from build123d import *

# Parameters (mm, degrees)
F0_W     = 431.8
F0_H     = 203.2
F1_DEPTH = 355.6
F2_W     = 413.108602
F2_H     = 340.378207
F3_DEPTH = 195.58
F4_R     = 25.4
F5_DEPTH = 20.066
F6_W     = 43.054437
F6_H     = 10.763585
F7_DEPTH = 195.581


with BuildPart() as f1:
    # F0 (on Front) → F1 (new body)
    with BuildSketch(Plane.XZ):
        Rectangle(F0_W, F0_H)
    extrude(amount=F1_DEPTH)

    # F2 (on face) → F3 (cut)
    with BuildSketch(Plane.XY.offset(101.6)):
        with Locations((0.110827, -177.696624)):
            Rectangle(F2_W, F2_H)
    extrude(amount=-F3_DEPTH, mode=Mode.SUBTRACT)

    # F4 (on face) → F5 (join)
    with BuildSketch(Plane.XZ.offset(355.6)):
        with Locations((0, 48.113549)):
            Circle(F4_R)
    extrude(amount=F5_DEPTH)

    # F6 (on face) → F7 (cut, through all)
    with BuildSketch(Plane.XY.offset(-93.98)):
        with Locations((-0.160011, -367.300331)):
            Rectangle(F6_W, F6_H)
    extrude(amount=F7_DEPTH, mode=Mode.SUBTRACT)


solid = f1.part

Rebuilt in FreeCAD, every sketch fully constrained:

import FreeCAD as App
import Part
import Sketcher
from FreeCAD import Vector
Q = App.Units.Quantity


def add_polygon(sketch, points):
    """Adds a closed chain of lines whose ends are joined by coincident constraints."""
    first, n = sketch.GeometryCount, len(points)
    for a, b in zip(points, points[1:] + points[:1]):
        sketch.addGeometry(Part.LineSegment(App.Vector(*a, 0), App.Vector(*b, 0)), False)
    for i in range(n):
        sketch.addConstraint(Sketcher.Constraint("Coincident", first + i, 2, first + (i + 1) % n, 1))

doc = App.newDocument("Part")
body = doc.addObject("PartDesign::Body", "Body")

# Sketch on XZ plane
sketch1 = doc.addObject("Sketcher::SketchObject", "Sketch")
body.addObject(sketch1)
sketch1.AttachmentSupport = (doc.XZ_Plane, [""])
sketch1.MapMode = "FlatFace"
add_polygon(sketch1, [(-216, 102), (-216, -102), (216, -102), (216, 102)])  # lines 0-3
sketch1.addConstraint(Sketcher.Constraint("Vertical", 0))
sketch1.addConstraint(Sketcher.Constraint("Horizontal", 1))
sketch1.addConstraint(Sketcher.Constraint("Vertical", 2))
sketch1.addConstraint(Sketcher.Constraint("Horizontal", 3))
sketch1.addConstraint(Sketcher.Constraint("Symmetric", 0, 2, 2, 2, -1, 1))
sketch1.addConstraint(Sketcher.Constraint("DistanceX", 1, 1, 1, 2, Q("17 in")))
sketch1.addConstraint(Sketcher.Constraint("DistanceY", 0, 2, 0, 1, Q("8 in")))
pad1 = doc.addObject("PartDesign::Pad", "Pad")
body.addObject(pad1)
pad1.Profile = sketch1
pad1.Length = Q("14 in")

# Sketch on XY plane
sketch2 = doc.addObject("Sketcher::SketchObject", "Sketch001")
body.addObject(sketch2)
sketch2.AttachmentSupport = (doc.XY_Plane, [""])
sketch2.MapMode = "FlatFace"
sketch2.AttachmentOffset = App.Placement(Vector(0, 0, 4 * 25.4), App.Rotation())
add_polygon(sketch2, [(-206, -8), (-206, -348), (207, -348), (207, -8)])  # lines 0-3
sketch2.addConstraint(Sketcher.Constraint("Vertical", 0))
sketch2.addConstraint(Sketcher.Constraint("Horizontal", 1))
sketch2.addConstraint(Sketcher.Constraint("Vertical", 2))
sketch2.addConstraint(Sketcher.Constraint("Horizontal", 3))
sketch2.addConstraint(Sketcher.Constraint("DistanceX", 1, 1, 1, 2, Q("413.108602 mm")))
sketch2.addConstraint(Sketcher.Constraint("DistanceY", 0, 2, 0, 1, Q("340.378207 mm")))
sketch2.addConstraint(Sketcher.Constraint("DistanceX", -1, 1, 1, 2, Q("206.665128 mm")))
sketch2.addConstraint(Sketcher.Constraint("DistanceY", 2, 2, -1, 1, Q("7.507521 mm")))
pocket1 = doc.addObject("PartDesign::Pocket", "Pocket")
body.addObject(pocket1)
pocket1.Profile = sketch2
pocket1.Length = Q("7.7 in")

# Sketch on XZ plane
sketch3 = doc.addObject("Sketcher::SketchObject", "Sketch002")
body.addObject(sketch3)
sketch3.AttachmentSupport = (doc.XZ_Plane, [""])
sketch3.MapMode = "FlatFace"
sketch3.AttachmentOffset = App.Placement(Vector(0, 0, 14 * 25.4), App.Rotation())
sketch3.addGeometry(Part.Circle(Vector(0, 48, 0), Vector(0, 0, 1), 25), False)
sketch3.addConstraint(Sketcher.Constraint("PointOnObject", 0, 3, -2))
sketch3.addConstraint(Sketcher.Constraint("Diameter", 0, Q("2 in")))
sketch3.addConstraint(Sketcher.Constraint("DistanceY", -1, 1, 0, 3, Q("48.113549 mm")))
pad2 = doc.addObject("PartDesign::Pad", "Pad001")
body.addObject(pad2)
pad2.Profile = sketch3
pad2.Length = Q("0.79 in")

# Sketch on XY plane
sketch4 = doc.addObject("Sketcher::SketchObject", "Sketch003")
body.addObject(sketch4)
sketch4.AttachmentSupport = (doc.XY_Plane, [""])
sketch4.MapMode = "FlatFace"
sketch4.AttachmentOffset = App.Placement(Vector(0, 0, -3.7 * 25.4), App.Rotation())
add_polygon(sketch4, [(-22, -362), (-22, -373), (21, -373), (21, -362)])  # lines 0-3
sketch4.addConstraint(Sketcher.Constraint("Vertical", 0))
sketch4.addConstraint(Sketcher.Constraint("Horizontal", 1))
sketch4.addConstraint(Sketcher.Constraint("Vertical", 2))
sketch4.addConstraint(Sketcher.Constraint("Horizontal", 3))
sketch4.addConstraint(Sketcher.Constraint("DistanceX", 1, 1, 1, 2, Q("43.054437 mm")))
sketch4.addConstraint(Sketcher.Constraint("DistanceY", 0, 2, 0, 1, Q("10.763585 mm")))
sketch4.addConstraint(Sketcher.Constraint("DistanceX", 0, 2, -1, 1, Q("21.68723 mm")))
sketch4.addConstraint(Sketcher.Constraint("DistanceY", 2, 2, -1, 1, Q("361.918539 mm")))
pocket2 = doc.addObject("PartDesign::Pocket", "Pocket001")
body.addObject(pocket2)
pocket2.Profile = sketch4
pocket2.Type = "ThroughAll"
pocket2.Reversed = True

doc.recompute()
